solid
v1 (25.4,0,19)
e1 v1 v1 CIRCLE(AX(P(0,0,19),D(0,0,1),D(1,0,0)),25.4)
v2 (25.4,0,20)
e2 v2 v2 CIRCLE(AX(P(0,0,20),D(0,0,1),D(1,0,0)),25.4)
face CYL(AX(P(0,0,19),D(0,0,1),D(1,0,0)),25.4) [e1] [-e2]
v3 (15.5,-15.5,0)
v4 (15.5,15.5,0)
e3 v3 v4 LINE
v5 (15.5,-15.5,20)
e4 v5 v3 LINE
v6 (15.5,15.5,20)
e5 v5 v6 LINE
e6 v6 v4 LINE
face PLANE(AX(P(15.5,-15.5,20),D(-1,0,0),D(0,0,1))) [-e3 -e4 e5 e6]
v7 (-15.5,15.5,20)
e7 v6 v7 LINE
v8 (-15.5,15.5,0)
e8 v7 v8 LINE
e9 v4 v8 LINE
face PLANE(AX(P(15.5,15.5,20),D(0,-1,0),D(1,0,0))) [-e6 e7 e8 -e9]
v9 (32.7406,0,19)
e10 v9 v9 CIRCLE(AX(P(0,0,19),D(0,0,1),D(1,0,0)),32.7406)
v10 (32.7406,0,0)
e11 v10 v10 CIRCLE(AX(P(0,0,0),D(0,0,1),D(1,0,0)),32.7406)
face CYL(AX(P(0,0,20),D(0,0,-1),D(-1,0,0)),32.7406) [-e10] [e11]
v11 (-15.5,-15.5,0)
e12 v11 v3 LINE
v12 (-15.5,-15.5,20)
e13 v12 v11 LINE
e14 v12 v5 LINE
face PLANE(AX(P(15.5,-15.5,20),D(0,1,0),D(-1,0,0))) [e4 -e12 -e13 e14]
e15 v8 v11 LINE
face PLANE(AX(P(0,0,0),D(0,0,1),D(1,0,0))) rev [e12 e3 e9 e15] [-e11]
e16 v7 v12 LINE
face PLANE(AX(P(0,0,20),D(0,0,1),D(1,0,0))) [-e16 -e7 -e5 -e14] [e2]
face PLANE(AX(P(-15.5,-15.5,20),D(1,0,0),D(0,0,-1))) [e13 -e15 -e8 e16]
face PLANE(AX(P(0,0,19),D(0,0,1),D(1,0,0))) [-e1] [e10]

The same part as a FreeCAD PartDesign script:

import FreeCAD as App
import Part
import Sketcher
Q = App.Units.Quantity

doc = App.newDocument("Part")
body = doc.addObject("PartDesign::Body", "Body")

# Sketch on XY plane
sketch1 = body.newObject("Sketcher::SketchObject", "Sketch")
sketch1.AttachmentSupport = (doc.getObject("XY_Plane"), [""])
sketch1.MapMode = "FlatFace"
sketch1.addGeometry(Part.Circle(App.Vector(0, 0, 0), App.Vector(0, 0, 1), 32.7406), False)
sketch1.addGeometry(Part.LineSegment(App.Vector(15.5, -15.5, 0), App.Vector(-15.5, -15.5, 0)), False)
sketch1.addGeometry(Part.LineSegment(App.Vector(-15.5, -15.5, 0), App.Vector(-15.5, 15.5, 0)), False)
sketch1.addGeometry(Part.LineSegment(App.Vector(-15.5, 15.5, 0), App.Vector(15.5, 15.5, 0)), False)
sketch1.addGeometry(Part.LineSegment(App.Vector(15.5, 15.5, 0), App.Vector(15.5, -15.5, 0)), False)
sketch1.addConstraint(Sketcher.Constraint("Coincident", 1, 2, 2, 1))
sketch1.addConstraint(Sketcher.Constraint("Coincident", 2, 2, 3, 1))
sketch1.addConstraint(Sketcher.Constraint("Coincident", 3, 2, 4, 1))
sketch1.addConstraint(Sketcher.Constraint("Coincident", 4, 2, 1, 1))
sketch1.addConstraint(Sketcher.Constraint("Horizontal", 1))
sketch1.addConstraint(Sketcher.Constraint("Vertical", 2))
sketch1.addConstraint(Sketcher.Constraint("Horizontal", 3))
sketch1.addConstraint(Sketcher.Constraint("Vertical", 4))
sketch1.addConstraint(Sketcher.Constraint("Coincident", 0, 3, -1, 1))
sketch1.addConstraint(Sketcher.Constraint("Symmetric", 1, 2, 3, 2, -1, 1))
sketch1.addConstraint(Sketcher.Constraint("Equal", 3, 2))
sketch1.addConstraint(Sketcher.Constraint("DistanceX", 1, 2, 1, 1, Q("31 mm")))
sketch1.addConstraint(Sketcher.Constraint("Diameter", 0, Q("65.4812 mm")))
pad1 = body.newObject("PartDesign::Pad", "Pad")
pad1.Profile = sketch1
pad1.Length = 20

# Sketch on XY plane
sketch2 = body.newObject("Sketcher::SketchObject", "Sketch001")
sketch2.AttachmentSupport = (doc.getObject("XY_Plane"), [""])
sketch2.MapMode = "FlatFace"
sketch2.AttachmentOffset = App.Placement(App.Vector(0, 0, 20), App.Rotation())
sketch2.addGeometry(Part.Circle(App.Vector(0, 0, 0), App.Vector(0, 0, 1), 32.7406), False)
sketch2.addGeometry(Part.Circle(App.Vector(0, 0, 0), App.Vector(0, 0, 1), 25.4), False)
sketch2.addConstraint(Sketcher.Constraint("Coincident", 0, 3, -1, 1))
sketch2.addConstraint(Sketcher.Constraint("Coincident", 1, 3, -1, 1))
sketch2.addConstraint(Sketcher.Constraint("Diameter", 1, Q("50.8 mm")))
sketch2.addConstraint(Sketcher.Constraint("Diameter", 0, Q("65.4812 mm")))
pocket1 = body.newObject("PartDesign::Pocket", "Pocket")
pocket1.Profile = sketch2
pocket1.Length = 1

doc.recompute()
